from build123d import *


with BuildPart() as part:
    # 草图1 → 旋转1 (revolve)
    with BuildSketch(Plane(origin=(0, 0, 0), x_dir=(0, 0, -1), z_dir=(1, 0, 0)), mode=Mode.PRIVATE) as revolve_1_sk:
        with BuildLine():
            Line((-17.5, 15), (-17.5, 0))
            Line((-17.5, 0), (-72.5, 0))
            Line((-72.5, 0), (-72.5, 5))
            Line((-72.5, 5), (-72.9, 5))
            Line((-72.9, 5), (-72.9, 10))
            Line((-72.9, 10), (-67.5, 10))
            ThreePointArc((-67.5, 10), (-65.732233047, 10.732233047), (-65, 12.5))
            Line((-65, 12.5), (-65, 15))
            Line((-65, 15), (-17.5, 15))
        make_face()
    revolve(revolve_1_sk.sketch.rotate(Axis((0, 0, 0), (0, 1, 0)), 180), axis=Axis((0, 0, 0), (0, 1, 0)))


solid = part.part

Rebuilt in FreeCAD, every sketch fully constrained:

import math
import FreeCAD as App
import Part
import Sketcher

V = App.Vector

doc = App.newDocument("Part")
body = doc.addObject("PartDesign::Body", "Body")

# Sketch on YZ plane
sketch1 = body.newObject("Sketcher::SketchObject", "Sketch")
sketch1.AttachmentSupport = (doc.getObject("YZ_Plane"), [""])
sketch1.MapMode = "FlatFace"
sketch1.addGeometry(Part.LineSegment(V(0, 17.5, 0), V(15, 17.5, 0)), False)
sketch1.addGeometry(Part.LineSegment(V(15, 17.5, 0), V(15, 65, 0)), False)
sketch1.addGeometry(Part.LineSegment(V(15, 65, 0), V(12.5, 65, 0)), False)
sketch1.addGeometry(Part.ArcOfCircle(Part.Circle(V(12.5, 67.5, 0), V(0, 0, 1), 2.5), math.radians(180), math.radians(270)), False)
sketch1.addGeometry(Part.LineSegment(V(10, 67.5, 0), V(10, 72.9, 0)), False)
sketch1.addGeometry(Part.LineSegment(V(10, 72.9, 0), V(5, 72.9, 0)), False)
sketch1.addGeometry(Part.LineSegment(V(5, 72.9, 0), V(5, 72.5, 0)), False)
sketch1.addGeometry(Part.LineSegment(V(5, 72.5, 0), V(0, 72.5, 0)), False)
sketch1.addGeometry(Part.LineSegment(V(0, 72.5, 0), V(0, 17.5, 0)), False)
sketch1.addConstraint(Sketcher.Constraint("Coincident", 0, 2, 1, 1))
sketch1.addConstraint(Sketcher.Constraint("Coincident", 1, 2, 2, 1))
sketch1.addConstraint(Sketcher.Constraint("Tangent", 2, 2, 3, 2))
sketch1.addConstraint(Sketcher.Constraint("Tangent", 3, 1, 4, 1))
sketch1.addConstraint(Sketcher.Constraint("Coincident", 4, 2, 5, 1))
sketch1.addConstraint(Sketcher.Constraint("Coincident", 5, 2, 6, 1))
sketch1.addConstraint(Sketcher.Constraint("Coincident", 6, 2, 7, 1))
sketch1.addConstraint(Sketcher.Constraint("Coincident", 7, 2, 8, 1))
sketch1.addConstraint(Sketcher.Constraint("Coincident", 8, 2, 0, 1))
sketch1.addConstraint(Sketcher.Constraint("Horizontal", 0))
sketch1.addConstraint(Sketcher.Constraint("Vertical", 1))
sketch1.addConstraint(Sketcher.Constraint("Horizontal", 2))
sketch1.addConstraint(Sketcher.Constraint("Vertical", 4))
sketch1.addConstraint(Sketcher.Constraint("Horizontal", 5))
sketch1.addConstraint(Sketcher.Constraint("Vertical", 6))
sketch1.addConstraint(Sketcher.Constraint("Horizontal", 7))
sketch1.addConstraint(Sketcher.Constraint("Vertical", 8))
sketch1.addConstraint(Sketcher.Constraint("PointOnObject", 7, 2, -2))
sketch1.addConstraint(Sketcher.Constraint("Equal", 5, 7))
sketch1.addConstraint(Sketcher.Constraint("Radius", 3, 2.5))
sketch1.addConstraint(Sketcher.Constraint("DistanceX", 0, 1, 0, 2, 15.0))
sketch1.addConstraint(Sketcher.Constraint("DistanceX", 5, 2, 5, 1, 5.0))
sketch1.addConstraint(Sketcher.Constraint("DistanceY", 8, 2, 8, 1, 55.0))
sketch1.addConstraint(Sketcher.Constraint("DistanceY", 1, 1, 1, 2, 47.5))
sketch1.addConstraint(Sketcher.Constraint("DistanceY", 4, 1, 4, 2, 5.4))
sketch1.addConstraint(Sketcher.Constraint("DistanceY", -1, 1, 1, 2, 65.0))
revolution = body.newObject("PartDesign::Revolution", "Revolution")
revolution.Profile = sketch1
revolution.ReferenceAxis = (sketch1, ["H_Axis"])
revolution.Angle = 360

doc.recompute()
